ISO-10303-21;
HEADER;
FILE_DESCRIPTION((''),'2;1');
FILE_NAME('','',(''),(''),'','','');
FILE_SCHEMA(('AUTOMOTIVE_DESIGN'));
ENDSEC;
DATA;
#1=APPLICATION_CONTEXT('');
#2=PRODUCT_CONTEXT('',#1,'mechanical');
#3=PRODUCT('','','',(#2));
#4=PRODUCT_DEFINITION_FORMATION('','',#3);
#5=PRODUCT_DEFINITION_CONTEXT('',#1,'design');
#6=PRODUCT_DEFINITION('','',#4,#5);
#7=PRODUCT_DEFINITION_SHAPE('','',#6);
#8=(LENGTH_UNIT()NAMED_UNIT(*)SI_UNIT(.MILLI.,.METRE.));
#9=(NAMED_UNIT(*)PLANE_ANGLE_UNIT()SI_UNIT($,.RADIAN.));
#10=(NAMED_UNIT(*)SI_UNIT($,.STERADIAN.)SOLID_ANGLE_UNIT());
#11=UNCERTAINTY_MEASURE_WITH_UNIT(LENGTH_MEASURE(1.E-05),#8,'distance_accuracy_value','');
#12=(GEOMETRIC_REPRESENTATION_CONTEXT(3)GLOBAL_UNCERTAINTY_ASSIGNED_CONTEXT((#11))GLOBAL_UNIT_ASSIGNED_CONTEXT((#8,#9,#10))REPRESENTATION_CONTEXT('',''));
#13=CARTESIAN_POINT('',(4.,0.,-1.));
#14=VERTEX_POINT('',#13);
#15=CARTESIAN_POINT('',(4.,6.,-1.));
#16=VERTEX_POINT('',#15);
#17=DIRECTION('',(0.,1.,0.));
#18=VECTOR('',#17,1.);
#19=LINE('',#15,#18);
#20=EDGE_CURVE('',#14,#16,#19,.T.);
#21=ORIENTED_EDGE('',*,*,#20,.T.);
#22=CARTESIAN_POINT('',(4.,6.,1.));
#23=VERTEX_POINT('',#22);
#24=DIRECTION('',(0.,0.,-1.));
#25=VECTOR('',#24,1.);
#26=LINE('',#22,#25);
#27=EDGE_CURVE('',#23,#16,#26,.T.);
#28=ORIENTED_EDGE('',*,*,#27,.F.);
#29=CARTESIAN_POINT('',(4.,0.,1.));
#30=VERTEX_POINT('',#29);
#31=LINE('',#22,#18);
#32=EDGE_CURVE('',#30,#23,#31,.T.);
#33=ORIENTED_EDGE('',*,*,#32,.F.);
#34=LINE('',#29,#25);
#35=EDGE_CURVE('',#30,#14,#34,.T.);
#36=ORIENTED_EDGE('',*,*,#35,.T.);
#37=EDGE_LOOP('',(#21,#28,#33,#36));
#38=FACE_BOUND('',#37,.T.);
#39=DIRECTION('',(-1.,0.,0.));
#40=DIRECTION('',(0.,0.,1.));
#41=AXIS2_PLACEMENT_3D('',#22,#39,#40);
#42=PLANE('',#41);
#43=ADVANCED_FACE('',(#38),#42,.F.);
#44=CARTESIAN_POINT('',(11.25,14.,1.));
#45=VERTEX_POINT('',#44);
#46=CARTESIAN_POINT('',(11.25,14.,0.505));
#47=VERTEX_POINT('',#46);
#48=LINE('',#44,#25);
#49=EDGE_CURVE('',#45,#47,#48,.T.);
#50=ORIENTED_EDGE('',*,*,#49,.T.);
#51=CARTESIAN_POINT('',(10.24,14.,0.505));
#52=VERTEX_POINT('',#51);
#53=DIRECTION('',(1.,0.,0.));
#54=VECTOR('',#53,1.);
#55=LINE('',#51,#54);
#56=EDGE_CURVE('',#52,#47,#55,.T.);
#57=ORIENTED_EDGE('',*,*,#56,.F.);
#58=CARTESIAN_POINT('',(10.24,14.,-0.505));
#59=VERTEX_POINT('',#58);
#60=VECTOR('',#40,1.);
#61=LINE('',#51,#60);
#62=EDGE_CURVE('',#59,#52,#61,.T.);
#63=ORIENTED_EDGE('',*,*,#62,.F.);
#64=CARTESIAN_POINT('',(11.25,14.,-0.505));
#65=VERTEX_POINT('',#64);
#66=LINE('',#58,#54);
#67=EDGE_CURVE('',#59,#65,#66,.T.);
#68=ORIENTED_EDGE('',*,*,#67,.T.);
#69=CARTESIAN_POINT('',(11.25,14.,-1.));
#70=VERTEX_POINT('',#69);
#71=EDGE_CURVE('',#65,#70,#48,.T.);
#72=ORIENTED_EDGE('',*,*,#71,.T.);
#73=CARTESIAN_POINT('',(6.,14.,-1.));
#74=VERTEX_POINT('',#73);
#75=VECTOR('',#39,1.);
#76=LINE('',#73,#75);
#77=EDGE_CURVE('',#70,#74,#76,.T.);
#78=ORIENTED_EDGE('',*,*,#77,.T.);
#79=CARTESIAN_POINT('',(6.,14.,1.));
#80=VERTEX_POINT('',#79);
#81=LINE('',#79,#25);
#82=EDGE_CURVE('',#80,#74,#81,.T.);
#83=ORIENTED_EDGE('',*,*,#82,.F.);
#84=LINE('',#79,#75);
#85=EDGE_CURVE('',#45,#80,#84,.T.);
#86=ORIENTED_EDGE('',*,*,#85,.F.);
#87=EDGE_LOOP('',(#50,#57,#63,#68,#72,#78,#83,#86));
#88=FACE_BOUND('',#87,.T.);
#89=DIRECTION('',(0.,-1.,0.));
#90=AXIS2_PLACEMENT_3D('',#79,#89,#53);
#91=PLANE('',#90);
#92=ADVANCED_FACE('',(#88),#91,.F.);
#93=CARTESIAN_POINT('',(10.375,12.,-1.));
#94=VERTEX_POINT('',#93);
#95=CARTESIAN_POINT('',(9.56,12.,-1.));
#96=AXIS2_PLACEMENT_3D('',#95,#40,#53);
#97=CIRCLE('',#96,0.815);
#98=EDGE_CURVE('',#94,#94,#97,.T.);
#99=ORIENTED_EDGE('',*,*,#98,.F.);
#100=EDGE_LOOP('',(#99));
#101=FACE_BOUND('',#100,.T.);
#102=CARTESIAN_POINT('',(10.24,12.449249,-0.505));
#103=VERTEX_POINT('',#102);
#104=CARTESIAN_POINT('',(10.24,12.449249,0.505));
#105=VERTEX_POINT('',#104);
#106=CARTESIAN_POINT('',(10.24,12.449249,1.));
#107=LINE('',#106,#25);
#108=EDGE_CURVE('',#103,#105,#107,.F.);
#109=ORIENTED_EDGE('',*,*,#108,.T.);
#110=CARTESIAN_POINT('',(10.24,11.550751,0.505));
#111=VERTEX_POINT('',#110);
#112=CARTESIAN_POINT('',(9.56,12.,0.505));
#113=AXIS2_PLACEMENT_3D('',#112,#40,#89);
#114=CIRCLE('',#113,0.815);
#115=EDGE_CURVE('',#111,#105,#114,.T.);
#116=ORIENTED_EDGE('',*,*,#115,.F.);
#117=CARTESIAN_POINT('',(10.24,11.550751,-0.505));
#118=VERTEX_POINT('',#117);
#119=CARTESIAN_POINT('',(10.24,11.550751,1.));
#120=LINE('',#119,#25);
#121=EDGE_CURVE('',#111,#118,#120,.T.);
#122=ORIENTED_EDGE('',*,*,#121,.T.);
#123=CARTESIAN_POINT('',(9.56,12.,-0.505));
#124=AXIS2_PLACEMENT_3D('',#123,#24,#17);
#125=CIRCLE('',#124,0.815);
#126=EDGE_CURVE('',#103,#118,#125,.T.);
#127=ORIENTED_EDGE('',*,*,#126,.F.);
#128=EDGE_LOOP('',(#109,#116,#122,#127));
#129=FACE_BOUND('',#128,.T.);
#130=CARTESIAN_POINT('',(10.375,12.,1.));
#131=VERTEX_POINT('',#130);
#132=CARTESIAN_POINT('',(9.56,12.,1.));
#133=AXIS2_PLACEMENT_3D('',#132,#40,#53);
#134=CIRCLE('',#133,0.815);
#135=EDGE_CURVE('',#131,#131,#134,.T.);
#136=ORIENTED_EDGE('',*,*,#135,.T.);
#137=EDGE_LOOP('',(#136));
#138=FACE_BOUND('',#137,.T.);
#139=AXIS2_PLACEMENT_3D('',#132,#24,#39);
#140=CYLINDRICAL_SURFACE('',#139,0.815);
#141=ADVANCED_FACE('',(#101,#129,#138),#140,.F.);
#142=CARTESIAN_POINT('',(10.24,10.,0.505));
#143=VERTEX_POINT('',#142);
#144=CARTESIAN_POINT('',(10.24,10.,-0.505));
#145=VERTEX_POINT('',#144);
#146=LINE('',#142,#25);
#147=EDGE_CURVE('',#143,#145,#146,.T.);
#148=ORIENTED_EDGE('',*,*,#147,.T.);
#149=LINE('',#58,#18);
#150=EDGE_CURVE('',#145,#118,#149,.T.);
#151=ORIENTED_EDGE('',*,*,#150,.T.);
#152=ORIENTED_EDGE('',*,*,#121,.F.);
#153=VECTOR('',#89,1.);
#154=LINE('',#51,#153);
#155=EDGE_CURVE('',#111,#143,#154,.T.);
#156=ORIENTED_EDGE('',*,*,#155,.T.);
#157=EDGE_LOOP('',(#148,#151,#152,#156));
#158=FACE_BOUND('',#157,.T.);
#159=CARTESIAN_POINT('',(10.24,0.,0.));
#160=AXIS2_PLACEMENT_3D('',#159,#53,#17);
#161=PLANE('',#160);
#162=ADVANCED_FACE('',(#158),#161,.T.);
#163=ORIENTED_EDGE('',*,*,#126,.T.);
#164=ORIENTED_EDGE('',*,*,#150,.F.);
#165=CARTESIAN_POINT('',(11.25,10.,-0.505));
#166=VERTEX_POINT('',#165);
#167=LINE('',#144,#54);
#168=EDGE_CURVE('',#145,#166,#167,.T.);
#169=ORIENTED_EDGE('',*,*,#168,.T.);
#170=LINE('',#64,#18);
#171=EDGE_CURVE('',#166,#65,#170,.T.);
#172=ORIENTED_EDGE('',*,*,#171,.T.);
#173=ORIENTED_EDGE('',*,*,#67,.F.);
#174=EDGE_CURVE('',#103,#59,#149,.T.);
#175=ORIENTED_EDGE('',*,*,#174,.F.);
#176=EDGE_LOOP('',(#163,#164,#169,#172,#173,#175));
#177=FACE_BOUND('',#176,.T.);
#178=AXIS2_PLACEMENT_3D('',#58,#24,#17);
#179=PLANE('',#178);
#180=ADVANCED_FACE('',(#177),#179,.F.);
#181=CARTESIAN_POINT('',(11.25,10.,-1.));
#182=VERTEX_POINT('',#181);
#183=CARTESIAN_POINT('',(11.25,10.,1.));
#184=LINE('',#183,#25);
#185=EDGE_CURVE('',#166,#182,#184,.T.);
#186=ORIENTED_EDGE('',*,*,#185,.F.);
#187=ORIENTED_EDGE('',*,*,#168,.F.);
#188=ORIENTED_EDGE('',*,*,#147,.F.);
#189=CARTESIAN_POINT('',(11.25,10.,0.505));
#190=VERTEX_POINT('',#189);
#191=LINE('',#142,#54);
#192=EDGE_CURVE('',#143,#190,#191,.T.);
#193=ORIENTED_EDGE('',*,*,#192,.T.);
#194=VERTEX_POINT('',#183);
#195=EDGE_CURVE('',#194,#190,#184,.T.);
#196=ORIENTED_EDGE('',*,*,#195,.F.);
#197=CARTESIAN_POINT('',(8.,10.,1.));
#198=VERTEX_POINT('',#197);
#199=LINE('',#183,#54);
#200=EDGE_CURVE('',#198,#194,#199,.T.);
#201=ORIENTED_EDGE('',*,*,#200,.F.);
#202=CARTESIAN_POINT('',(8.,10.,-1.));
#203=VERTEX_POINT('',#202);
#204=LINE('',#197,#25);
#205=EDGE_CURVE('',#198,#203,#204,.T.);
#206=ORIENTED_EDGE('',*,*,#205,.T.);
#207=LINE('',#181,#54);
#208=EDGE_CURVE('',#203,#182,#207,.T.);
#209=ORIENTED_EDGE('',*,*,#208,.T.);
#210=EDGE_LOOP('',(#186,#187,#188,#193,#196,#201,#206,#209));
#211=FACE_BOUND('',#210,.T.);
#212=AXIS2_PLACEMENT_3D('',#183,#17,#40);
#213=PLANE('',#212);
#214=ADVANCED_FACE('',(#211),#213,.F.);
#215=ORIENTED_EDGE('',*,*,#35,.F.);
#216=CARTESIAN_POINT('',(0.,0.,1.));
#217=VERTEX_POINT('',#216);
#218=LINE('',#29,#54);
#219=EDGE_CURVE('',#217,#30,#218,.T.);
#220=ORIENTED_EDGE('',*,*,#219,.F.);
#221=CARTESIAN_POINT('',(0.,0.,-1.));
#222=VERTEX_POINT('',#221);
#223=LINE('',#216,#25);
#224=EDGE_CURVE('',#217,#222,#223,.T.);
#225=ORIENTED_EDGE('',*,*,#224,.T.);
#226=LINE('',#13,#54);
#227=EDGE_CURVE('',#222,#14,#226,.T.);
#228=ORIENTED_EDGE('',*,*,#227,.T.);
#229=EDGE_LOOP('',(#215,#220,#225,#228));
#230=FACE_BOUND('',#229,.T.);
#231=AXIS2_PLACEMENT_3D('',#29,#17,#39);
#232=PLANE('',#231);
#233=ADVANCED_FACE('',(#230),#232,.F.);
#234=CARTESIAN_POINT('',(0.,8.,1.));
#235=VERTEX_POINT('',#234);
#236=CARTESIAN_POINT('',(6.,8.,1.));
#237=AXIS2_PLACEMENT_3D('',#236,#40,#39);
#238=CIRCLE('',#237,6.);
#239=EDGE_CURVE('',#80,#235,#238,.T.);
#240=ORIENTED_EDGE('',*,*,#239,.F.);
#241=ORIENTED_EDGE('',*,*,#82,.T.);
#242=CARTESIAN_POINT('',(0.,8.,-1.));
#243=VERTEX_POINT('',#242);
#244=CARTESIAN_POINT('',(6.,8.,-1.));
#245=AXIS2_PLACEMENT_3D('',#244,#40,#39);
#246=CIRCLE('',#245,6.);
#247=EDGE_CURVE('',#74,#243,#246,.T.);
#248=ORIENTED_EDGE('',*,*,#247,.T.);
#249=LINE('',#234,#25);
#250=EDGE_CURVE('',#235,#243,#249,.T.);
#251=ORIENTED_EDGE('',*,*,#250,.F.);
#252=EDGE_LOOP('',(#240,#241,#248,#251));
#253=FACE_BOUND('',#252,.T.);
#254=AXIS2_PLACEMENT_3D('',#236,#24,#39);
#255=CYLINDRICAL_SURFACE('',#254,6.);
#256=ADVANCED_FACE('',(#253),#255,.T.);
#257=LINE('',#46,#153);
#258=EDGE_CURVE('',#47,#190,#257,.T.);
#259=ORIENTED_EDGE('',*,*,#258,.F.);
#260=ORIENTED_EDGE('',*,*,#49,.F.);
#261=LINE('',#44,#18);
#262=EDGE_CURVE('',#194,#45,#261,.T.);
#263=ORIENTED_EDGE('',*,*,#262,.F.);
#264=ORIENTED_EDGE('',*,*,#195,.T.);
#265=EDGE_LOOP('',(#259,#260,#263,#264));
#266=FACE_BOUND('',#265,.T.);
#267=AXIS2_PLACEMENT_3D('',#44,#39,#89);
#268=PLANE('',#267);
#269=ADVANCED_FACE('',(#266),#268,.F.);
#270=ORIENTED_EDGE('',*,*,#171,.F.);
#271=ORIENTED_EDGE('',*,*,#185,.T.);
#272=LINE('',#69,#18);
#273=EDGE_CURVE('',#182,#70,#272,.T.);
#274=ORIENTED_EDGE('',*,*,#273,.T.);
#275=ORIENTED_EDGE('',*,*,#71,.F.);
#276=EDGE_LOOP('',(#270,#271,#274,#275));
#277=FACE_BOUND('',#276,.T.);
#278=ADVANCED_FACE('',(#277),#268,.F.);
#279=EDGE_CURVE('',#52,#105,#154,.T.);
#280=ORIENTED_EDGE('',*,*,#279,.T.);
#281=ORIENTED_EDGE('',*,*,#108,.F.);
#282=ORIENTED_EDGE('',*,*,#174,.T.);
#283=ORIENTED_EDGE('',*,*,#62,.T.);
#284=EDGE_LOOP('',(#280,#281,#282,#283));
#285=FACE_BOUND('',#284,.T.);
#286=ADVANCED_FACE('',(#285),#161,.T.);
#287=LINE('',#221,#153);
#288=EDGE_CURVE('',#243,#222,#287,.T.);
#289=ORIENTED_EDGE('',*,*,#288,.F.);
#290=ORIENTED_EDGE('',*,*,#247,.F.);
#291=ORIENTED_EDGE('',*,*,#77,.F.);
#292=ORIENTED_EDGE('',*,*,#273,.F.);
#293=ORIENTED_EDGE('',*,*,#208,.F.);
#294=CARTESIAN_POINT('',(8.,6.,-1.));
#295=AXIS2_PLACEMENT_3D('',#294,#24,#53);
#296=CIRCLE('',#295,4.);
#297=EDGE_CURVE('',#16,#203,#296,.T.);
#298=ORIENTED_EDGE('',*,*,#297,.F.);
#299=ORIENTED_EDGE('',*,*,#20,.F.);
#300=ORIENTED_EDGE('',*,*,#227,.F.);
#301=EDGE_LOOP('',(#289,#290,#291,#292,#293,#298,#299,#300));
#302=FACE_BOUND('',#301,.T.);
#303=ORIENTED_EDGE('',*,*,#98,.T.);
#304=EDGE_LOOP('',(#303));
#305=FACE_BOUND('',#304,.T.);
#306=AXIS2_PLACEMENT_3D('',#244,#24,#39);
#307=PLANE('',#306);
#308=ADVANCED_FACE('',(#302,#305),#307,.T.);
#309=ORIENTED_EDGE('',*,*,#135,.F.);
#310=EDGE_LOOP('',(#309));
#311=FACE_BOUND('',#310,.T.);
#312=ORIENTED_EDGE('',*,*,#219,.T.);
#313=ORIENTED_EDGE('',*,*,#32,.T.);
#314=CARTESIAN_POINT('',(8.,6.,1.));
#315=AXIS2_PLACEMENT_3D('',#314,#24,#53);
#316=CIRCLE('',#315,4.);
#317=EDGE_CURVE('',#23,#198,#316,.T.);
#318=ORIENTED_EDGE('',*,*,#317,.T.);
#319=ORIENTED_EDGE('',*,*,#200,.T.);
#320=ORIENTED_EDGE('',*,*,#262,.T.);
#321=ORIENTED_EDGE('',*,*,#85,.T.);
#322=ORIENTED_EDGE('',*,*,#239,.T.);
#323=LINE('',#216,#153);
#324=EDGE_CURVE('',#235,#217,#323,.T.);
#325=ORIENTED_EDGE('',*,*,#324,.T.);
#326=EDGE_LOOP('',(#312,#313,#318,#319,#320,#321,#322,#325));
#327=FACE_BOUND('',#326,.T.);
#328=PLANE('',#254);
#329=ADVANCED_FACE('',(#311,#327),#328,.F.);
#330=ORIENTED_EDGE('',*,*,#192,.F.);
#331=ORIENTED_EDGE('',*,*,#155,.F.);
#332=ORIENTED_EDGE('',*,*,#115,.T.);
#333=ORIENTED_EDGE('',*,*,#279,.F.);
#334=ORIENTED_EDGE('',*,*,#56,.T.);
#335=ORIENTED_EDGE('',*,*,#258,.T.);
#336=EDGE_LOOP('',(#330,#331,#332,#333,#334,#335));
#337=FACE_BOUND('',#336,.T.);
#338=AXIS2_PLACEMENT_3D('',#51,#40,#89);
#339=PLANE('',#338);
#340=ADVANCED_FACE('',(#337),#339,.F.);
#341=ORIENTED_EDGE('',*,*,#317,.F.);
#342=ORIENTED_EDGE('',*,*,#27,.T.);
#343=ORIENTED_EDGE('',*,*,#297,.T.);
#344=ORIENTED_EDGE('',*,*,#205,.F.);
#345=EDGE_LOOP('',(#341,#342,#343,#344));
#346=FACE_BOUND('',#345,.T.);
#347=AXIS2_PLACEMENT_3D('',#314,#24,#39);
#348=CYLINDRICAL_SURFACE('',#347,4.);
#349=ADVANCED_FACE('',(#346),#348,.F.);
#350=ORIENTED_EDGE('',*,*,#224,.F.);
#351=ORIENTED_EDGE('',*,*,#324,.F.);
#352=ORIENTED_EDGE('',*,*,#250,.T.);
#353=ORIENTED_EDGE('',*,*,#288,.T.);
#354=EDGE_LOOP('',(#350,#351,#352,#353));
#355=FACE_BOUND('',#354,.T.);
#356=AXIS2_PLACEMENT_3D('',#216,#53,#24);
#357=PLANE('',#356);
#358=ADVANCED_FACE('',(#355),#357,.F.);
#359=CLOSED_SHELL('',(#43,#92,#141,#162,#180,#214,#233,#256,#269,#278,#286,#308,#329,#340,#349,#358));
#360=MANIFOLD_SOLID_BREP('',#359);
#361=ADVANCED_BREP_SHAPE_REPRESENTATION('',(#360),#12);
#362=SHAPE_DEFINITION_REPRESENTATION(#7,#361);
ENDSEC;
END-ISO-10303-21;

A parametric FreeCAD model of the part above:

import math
import FreeCAD as App
import Part
import Sketcher

doc = App.newDocument("Part")
body = doc.addObject("PartDesign::Body", "Body")

sketch1 = body.newObject("Sketcher::SketchObject", "Sketch")
sketch1.AttachmentSupport = (doc.getObject("XY_Plane"), [""])
sketch1.MapMode = "FlatFace"
sketch1.addGeometry(Part.LineSegment(App.Vector(0, 8, 0), App.Vector(0, 0, 0)), False)
sketch1.addGeometry(Part.LineSegment(App.Vector(0, 0, 0), App.Vector(4, 0, 0)), False)
sketch1.addGeometry(Part.LineSegment(App.Vector(4, 0, 0), App.Vector(4, 6, 0)), False)
sketch1.addGeometry(Part.ArcOfCircle(Part.Circle(App.Vector(8, 6, 0), App.Vector(0, 0, 1), 4), math.radians(90), math.radians(180)), False)
sketch1.addGeometry(Part.LineSegment(App.Vector(8, 10, 0), App.Vector(11.25, 10, 0)), False)
sketch1.addGeometry(Part.LineSegment(App.Vector(11.25, 10, 0), App.Vector(11.25, 14, 0)), False)
sketch1.addGeometry(Part.LineSegment(App.Vector(11.25, 14, 0), App.Vector(6, 14, 0)), False)
sketch1.addGeometry(Part.ArcOfCircle(Part.Circle(App.Vector(6, 8, 0), App.Vector(0, 0, 1), 6), math.radians(90), math.radians(180)), False)
sketch1.addGeometry(Part.Circle(App.Vector(9.56, 12, 0), App.Vector(0, 0, 1), 0.815), False)
sketch1.addConstraint(Sketcher.Constraint("Coincident", 0, 2, 1, 1))
sketch1.addConstraint(Sketcher.Constraint("Coincident", 1, 2, 2, 1))
sketch1.addConstraint(Sketcher.Constraint("Tangent", 2, 2, 3, 2))
sketch1.addConstraint(Sketcher.Constraint("Tangent", 3, 1, 4, 1))
sketch1.addConstraint(Sketcher.Constraint("Coincident", 4, 2, 5, 1))
sketch1.addConstraint(Sketcher.Constraint("Coincident", 5, 2, 6, 1))
sketch1.addConstraint(Sketcher.Constraint("Tangent", 6, 2, 7, 1))
sketch1.addConstraint(Sketcher.Constraint("Tangent", 7, 2, 0, 1))
sketch1.addConstraint(Sketcher.Constraint("Vertical", 0))
sketch1.addConstraint(Sketcher.Constraint("Horizontal", 1))
sketch1.addConstraint(Sketcher.Constraint("Vertical", 2))
sketch1.addConstraint(Sketcher.Constraint("Horizontal", 4))
sketch1.addConstraint(Sketcher.Constraint("Vertical", 5))
sketch1.addConstraint(Sketcher.Constraint("Horizontal", 6))
sketch1.addConstraint(Sketcher.Constraint("Coincident", 0, 2, -1, 1))
sketch1.addConstraint(Sketcher.Constraint("Equal", 1, 5))
sketch1.addConstraint(Sketcher.Constraint("Radius", 3, 4.0))
sketch1.addConstraint(Sketcher.Constraint("Radius", 7, 6.0))
sketch1.addConstraint(Sketcher.Constraint("Diameter", 8, 1.63))
sketch1.addConstraint(Sketcher.Constraint("DistanceX", 1, 1, 1, 2, 4.0))
sketch1.addConstraint(Sketcher.Constraint("DistanceY", 0, 2, 0, 1, 8.0))
sketch1.addConstraint(Sketcher.Constraint("DistanceY", -1, 1, 8, 3, 12.0))
sketch1.addConstraint(Sketcher.Constraint("DistanceX", 4, 1, 4, 2, 3.25))
sketch1.addConstraint(Sketcher.Constraint("DistanceX", -1, 1, 8, 3, 9.56))
pad1 = body.newObject("PartDesign::Pad", "Pad")
pad1.Profile = sketch1
pad1.Length = 2
pad1.Midplane = True

sketch2 = body.newObject("Sketcher::SketchObject", "Sketch001")
sketch2.AttachmentSupport = (doc.getObject("YZ_Plane"), [""])
sketch2.MapMode = "FlatFace"
sketch2.AttachmentOffset = App.Placement(App.Vector(0, 0, 11.25), App.Rotation())
sketch2.addGeometry(Part.LineSegment(App.Vector(14, 0.505, 0), App.Vector(10, 0.505, 0)), False)
sketch2.addGeometry(Part.LineSegment(App.Vector(10, 0.505, 0), App.Vector(10, -0.505, 0)), False)
sketch2.addGeometry(Part.LineSegment(App.Vector(10, -0.505, 0), App.Vector(14, -0.505, 0)), False)
sketch2.addGeometry(Part.LineSegment(App.Vector(14, -0.505, 0), App.Vector(14, 0.505, 0)), False)
sketch2.addConstraint(Sketcher.Constraint("Coincident", 0, 2, 1, 1))
sketch2.addConstraint(Sketcher.Constraint("Coincident", 1, 2, 2, 1))
sketch2.addConstraint(Sketcher.Constraint("Coincident", 2, 2, 3, 1))
sketch2.addConstraint(Sketcher.Constraint("Coincident", 3, 2, 0, 1))
sketch2.addConstraint(Sketcher.Constraint("Horizontal", 0))
sketch2.addConstraint(Sketcher.Constraint("Vertical", 1))
sketch2.addConstraint(Sketcher.Constraint("Horizontal", 2))
sketch2.addConstraint(Sketcher.Constraint("Vertical", 3))
sketch2.addConstraint(Sketcher.Constraint("DistanceX", 0, 2, 0, 1, 4.0))
sketch2.addConstraint(Sketcher.Constraint("DistanceX", -1, 1, 0, 2, 10.0))
sketch2.addConstraint(Sketcher.Constraint("DistanceY", 1, 2, 1, 1, 1.01))
sketch2.addConstraint(Sketcher.Constraint("DistanceY", -1, 1, 0, 2, 0.505))
pocket1 = body.newObject("PartDesign::Pocket", "Pocket")
pocket1.Profile = sketch2
pocket1.Length = 1.01

doc.recompute()
